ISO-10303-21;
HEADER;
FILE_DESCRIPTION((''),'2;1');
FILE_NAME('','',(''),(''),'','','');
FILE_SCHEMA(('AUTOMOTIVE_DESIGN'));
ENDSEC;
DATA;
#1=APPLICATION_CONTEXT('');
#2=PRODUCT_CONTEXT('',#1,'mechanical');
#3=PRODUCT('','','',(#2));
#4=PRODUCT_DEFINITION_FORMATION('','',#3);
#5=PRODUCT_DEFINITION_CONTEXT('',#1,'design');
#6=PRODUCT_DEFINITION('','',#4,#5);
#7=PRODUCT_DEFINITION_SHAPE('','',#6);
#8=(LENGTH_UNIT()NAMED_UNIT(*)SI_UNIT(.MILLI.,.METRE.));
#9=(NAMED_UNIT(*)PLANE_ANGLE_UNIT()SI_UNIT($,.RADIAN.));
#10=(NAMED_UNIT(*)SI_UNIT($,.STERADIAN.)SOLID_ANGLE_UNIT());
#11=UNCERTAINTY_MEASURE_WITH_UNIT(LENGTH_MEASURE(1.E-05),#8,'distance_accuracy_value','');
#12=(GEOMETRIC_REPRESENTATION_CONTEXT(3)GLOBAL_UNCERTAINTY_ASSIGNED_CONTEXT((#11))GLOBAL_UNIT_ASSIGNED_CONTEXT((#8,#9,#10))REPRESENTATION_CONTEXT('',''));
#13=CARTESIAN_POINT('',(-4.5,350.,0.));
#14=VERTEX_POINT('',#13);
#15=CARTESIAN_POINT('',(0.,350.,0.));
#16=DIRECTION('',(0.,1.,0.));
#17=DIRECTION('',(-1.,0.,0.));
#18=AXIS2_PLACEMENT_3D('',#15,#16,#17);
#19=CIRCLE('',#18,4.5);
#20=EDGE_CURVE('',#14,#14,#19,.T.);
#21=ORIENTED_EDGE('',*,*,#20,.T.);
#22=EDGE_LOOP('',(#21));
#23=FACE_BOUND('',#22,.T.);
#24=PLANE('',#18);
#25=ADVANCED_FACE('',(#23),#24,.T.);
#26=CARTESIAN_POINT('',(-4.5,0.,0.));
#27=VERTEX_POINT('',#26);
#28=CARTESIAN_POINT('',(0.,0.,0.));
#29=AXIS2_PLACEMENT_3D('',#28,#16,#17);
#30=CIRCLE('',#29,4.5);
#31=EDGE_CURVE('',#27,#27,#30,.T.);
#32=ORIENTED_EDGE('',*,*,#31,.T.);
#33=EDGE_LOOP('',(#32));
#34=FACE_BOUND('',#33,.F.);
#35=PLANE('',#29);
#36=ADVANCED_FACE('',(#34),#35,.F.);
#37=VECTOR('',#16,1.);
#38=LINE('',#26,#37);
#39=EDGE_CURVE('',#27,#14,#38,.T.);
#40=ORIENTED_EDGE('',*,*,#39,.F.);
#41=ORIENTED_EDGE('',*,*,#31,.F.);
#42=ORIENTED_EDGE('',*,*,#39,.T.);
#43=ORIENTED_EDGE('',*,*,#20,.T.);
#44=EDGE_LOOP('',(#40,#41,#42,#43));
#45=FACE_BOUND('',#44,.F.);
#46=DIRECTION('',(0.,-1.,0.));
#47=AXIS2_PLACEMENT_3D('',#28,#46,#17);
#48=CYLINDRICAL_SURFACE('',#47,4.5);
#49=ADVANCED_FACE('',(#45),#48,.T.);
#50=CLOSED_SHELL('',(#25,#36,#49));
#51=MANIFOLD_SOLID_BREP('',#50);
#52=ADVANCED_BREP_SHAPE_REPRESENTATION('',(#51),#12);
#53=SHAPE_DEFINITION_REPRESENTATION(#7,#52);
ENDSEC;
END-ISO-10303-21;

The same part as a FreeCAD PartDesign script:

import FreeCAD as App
import Part
import Sketcher
Q = App.Units.Quantity

doc = App.newDocument("Part")
body = doc.addObject("PartDesign::Body", "Body")

sketch1 = body.newObject("Sketcher::SketchObject", "Sketch")
sketch1.AttachmentSupport = (doc.getObject("XZ_Plane"), [""])
sketch1.MapMode = "FlatFace"
sketch1.addGeometry(Part.Circle(App.Vector(0, 0, 0), App.Vector(0, 0, 1), 4.5), False)
sketch1.addConstraint([
    Sketcher.Constraint("Coincident", 0, 3, -1, 1),
    Sketcher.Constraint("Diameter", 0, Q("9 mm")),
])
pad1 = body.newObject("PartDesign::Pad", "Pad")
pad1.Profile = sketch1
pad1.Length = 350
pad1.Reversed = True

doc.recompute()
